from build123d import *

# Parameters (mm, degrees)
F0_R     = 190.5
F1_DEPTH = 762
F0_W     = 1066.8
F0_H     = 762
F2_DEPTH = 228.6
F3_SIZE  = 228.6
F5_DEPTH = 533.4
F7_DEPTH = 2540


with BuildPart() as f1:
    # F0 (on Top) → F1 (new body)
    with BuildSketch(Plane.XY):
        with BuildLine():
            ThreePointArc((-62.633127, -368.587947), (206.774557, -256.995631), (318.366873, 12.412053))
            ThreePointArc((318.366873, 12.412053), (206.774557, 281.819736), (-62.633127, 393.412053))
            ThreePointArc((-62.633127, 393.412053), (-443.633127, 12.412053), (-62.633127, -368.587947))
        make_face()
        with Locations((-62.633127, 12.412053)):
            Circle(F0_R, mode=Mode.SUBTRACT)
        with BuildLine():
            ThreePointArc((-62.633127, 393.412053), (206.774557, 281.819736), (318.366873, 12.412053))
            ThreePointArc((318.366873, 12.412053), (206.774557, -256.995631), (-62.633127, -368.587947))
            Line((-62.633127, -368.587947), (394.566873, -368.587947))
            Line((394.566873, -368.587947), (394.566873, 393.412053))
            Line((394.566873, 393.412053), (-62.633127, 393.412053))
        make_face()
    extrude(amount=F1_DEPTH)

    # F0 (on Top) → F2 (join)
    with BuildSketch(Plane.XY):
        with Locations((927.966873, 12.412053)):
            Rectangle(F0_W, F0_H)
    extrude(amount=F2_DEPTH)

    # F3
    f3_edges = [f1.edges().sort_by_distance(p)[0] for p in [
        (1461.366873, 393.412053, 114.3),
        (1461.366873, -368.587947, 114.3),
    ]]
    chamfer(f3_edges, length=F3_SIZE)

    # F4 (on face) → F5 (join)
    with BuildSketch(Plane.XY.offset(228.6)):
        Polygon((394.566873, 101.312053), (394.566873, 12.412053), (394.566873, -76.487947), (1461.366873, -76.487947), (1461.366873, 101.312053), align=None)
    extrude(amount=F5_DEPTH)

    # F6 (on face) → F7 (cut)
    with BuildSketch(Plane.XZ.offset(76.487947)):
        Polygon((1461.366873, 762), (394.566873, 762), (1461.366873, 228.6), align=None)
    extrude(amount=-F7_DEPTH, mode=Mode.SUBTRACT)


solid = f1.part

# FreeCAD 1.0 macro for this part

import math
import FreeCAD as App
import Part
import Sketcher
from FreeCAD import Vector
Q = App.Units.Quantity


def edges_at(feature, points):
    """Names of the edges that pass closest to the given points."""
    edges = feature.Shape.Edges
    near = lambda p: min(range(len(edges)), key=lambda i: edges[i].distToShape(Part.Vertex(*p))[0])
    return sorted({f"Edge{near(p) + 1}" for p in points})

doc = App.newDocument("Part")
body = doc.addObject("PartDesign::Body", "Body")

# Sketch on XY plane
sketch1 = body.newObject("Sketcher::SketchObject", "Sketch")
sketch1.AttachmentSupport = (doc.getObject("XY_Plane"), [""])
sketch1.MapMode = "FlatFace"
sketch1.addGeometry([
    Part.ArcOfCircle(Part.Circle(Vector(-63, 12, 0), Vector(0, 0, 1), 381), math.radians(90), math.radians(270)),  # 0
    Part.LineSegment(Vector(-63, -369, 0), Vector(395, -369, 0)),  # 1
    Part.LineSegment(Vector(395, -369, 0), Vector(395, 393, 0)),  # 2
    Part.LineSegment(Vector(395, 393, 0), Vector(-63, 393, 0)),  # 3
    Part.Circle(Vector(-63, 12, 0), Vector(0, 0, 1), 190),  # 4
], False)
sketch1.addConstraint([
    Sketcher.Constraint("Tangent", 0, 2, 1, 1),
    Sketcher.Constraint("Coincident", 1, 2, 2, 1),
    Sketcher.Constraint("Coincident", 2, 2, 3, 1),
    Sketcher.Constraint("Tangent", 3, 2, 0, 1),
    Sketcher.Constraint("Horizontal", 1),
    Sketcher.Constraint("Vertical", 2),
    Sketcher.Constraint("Horizontal", 3),
    Sketcher.Constraint("Coincident", 4, 3, 0, 3),
    Sketcher.Constraint("Diameter", 4, Q("15 in")),
    Sketcher.Constraint("Radius", 0, Q("15 in")),
    Sketcher.Constraint("DistanceX", 1, 1, 1, 2, Q("18 in")),
    Sketcher.Constraint("DistanceX", 0, 3, -1, 1, Q("62.633127 mm")),
    Sketcher.Constraint("DistanceY", -1, 1, 0, 3, Q("12.412053 mm")),
])
pad1 = body.newObject("PartDesign::Pad", "Pad")
pad1.Profile = sketch1
pad1.Length = Q("30 in")

# Sketch on XY plane
sketch2 = body.newObject("Sketcher::SketchObject", "Sketch001")
sketch2.AttachmentSupport = (doc.getObject("XY_Plane"), [""])
sketch2.MapMode = "FlatFace"
sketch2.addGeometry([
    Part.LineSegment(Vector(395, 393, 0), Vector(395, -369, 0)),
    Part.LineSegment(Vector(395, -369, 0), Vector(1461, -369, 0)),
    Part.LineSegment(Vector(1461, -369, 0), Vector(1461, 393, 0)),
    Part.LineSegment(Vector(1461, 393, 0), Vector(395, 393, 0)),
], False)
sketch2.addConstraint([
    Sketcher.Constraint("Coincident", 0, 2, 1, 1),
    Sketcher.Constraint("Coincident", 1, 2, 2, 1),
    Sketcher.Constraint("Coincident", 2, 2, 3, 1),
    Sketcher.Constraint("Coincident", 3, 2, 0, 1),
    Sketcher.Constraint("Vertical", 0),
    Sketcher.Constraint("Horizontal", 1),
    Sketcher.Constraint("Vertical", 2),
    Sketcher.Constraint("Horizontal", 3),
    Sketcher.Constraint("DistanceX", 1, 1, 1, 2, Q("42 in")),
    Sketcher.Constraint("DistanceY", 0, 2, 0, 1, Q("30 in")),
    Sketcher.Constraint("DistanceX", -1, 1, 0, 2, Q("394.566873 mm")),
    Sketcher.Constraint("DistanceY", 0, 2, -1, 1, Q("368.587947 mm")),
])
pad2 = body.newObject("PartDesign::Pad", "Pad001")
pad2.Profile = sketch2
pad2.Length = Q("9 in")
doc.recompute()

chamfer = body.newObject("PartDesign::Chamfer", "Chamfer")
chamfer.Base = (pad2, edges_at(pad2, [(1461.367, 393.412, 114.3), (1461.367, -368.588, 114.3)]))
chamfer.Size = Q("9 in")

# Sketch on XY plane
sketch3 = body.newObject("Sketcher::SketchObject", "Sketch002")
sketch3.AttachmentSupport = (doc.getObject("XY_Plane"), [""])
sketch3.MapMode = "FlatFace"
sketch3.AttachmentOffset = App.Placement(Vector(0, 0, 9 * 25.4), App.Rotation())
sketch3.addGeometry([
    Part.LineSegment(Vector(395, 101, 0), Vector(395, -76, 0)),
    Part.LineSegment(Vector(395, -76, 0), Vector(1461, -76, 0)),
    Part.LineSegment(Vector(1461, -76, 0), Vector(1461, 101, 0)),
    Part.LineSegment(Vector(1461, 101, 0), Vector(395, 101, 0)),
], False)
sketch3.addConstraint([
    Sketcher.Constraint("Coincident", 0, 2, 1, 1),
    Sketcher.Constraint("Coincident", 1, 2, 2, 1),
    Sketcher.Constraint("Coincident", 2, 2, 3, 1),
    Sketcher.Constraint("Coincident", 3, 2, 0, 1),
    Sketcher.Constraint("Vertical", 0),
    Sketcher.Constraint("Horizontal", 1),
    Sketcher.Constraint("Vertical", 2),
    Sketcher.Constraint("Horizontal", 3),
    Sketcher.Constraint("DistanceX", 1, 1, 1, 2, Q("42 in")),
    Sketcher.Constraint("DistanceY", 0, 2, 0, 1, Q("7 in")),
    Sketcher.Constraint("DistanceX", -1, 1, 0, 2, Q("394.566873 mm")),
    Sketcher.Constraint("DistanceY", 0, 2, -1, 1, Q("76.487947 mm")),
])
pad3 = body.newObject("PartDesign::Pad", "Pad002")
pad3.Profile = sketch3
pad3.Length = Q("21 in")

# Sketch on XZ plane
sketch4 = body.newObject("Sketcher::SketchObject", "Sketch003")
sketch4.AttachmentSupport = (doc.getObject("XZ_Plane"), [""])
sketch4.MapMode = "FlatFace"
sketch4.AttachmentOffset = App.Placement(Vector(0, 0, 76.487947), App.Rotation())
sketch4.addGeometry([
    Part.LineSegment(Vector(1461, 762, 0), Vector(395, 762, 0)),
    Part.LineSegment(Vector(395, 762, 0), Vector(1461, 229, 0)),
    Part.LineSegment(Vector(1461, 229, 0), Vector(1461, 762, 0)),
], False)
sketch4.addConstraint([
    Sketcher.Constraint("Coincident", 0, 2, 1, 1),
    Sketcher.Constraint("Coincident", 1, 2, 2, 1),
    Sketcher.Constraint("Coincident", 2, 2, 0, 1),
    Sketcher.Constraint("Horizontal", 0),
    Sketcher.Constraint("Vertical", 2),
    Sketcher.Constraint("DistanceX", 0, 2, 0, 1, Q("42 in")),
    Sketcher.Constraint("DistanceY", 2, 1, 2, 2, Q("21 in")),
    Sketcher.Constraint("DistanceY", -1, 1, 0, 2, Q("30 in")),
    Sketcher.Constraint("DistanceX", -1, 1, 0, 2, Q("394.566873 mm")),
])
pocket1 = body.newObject("PartDesign::Pocket", "Pocket")
pocket1.Profile = sketch4
pocket1.Length = Q("100 in")

doc.recompute()
